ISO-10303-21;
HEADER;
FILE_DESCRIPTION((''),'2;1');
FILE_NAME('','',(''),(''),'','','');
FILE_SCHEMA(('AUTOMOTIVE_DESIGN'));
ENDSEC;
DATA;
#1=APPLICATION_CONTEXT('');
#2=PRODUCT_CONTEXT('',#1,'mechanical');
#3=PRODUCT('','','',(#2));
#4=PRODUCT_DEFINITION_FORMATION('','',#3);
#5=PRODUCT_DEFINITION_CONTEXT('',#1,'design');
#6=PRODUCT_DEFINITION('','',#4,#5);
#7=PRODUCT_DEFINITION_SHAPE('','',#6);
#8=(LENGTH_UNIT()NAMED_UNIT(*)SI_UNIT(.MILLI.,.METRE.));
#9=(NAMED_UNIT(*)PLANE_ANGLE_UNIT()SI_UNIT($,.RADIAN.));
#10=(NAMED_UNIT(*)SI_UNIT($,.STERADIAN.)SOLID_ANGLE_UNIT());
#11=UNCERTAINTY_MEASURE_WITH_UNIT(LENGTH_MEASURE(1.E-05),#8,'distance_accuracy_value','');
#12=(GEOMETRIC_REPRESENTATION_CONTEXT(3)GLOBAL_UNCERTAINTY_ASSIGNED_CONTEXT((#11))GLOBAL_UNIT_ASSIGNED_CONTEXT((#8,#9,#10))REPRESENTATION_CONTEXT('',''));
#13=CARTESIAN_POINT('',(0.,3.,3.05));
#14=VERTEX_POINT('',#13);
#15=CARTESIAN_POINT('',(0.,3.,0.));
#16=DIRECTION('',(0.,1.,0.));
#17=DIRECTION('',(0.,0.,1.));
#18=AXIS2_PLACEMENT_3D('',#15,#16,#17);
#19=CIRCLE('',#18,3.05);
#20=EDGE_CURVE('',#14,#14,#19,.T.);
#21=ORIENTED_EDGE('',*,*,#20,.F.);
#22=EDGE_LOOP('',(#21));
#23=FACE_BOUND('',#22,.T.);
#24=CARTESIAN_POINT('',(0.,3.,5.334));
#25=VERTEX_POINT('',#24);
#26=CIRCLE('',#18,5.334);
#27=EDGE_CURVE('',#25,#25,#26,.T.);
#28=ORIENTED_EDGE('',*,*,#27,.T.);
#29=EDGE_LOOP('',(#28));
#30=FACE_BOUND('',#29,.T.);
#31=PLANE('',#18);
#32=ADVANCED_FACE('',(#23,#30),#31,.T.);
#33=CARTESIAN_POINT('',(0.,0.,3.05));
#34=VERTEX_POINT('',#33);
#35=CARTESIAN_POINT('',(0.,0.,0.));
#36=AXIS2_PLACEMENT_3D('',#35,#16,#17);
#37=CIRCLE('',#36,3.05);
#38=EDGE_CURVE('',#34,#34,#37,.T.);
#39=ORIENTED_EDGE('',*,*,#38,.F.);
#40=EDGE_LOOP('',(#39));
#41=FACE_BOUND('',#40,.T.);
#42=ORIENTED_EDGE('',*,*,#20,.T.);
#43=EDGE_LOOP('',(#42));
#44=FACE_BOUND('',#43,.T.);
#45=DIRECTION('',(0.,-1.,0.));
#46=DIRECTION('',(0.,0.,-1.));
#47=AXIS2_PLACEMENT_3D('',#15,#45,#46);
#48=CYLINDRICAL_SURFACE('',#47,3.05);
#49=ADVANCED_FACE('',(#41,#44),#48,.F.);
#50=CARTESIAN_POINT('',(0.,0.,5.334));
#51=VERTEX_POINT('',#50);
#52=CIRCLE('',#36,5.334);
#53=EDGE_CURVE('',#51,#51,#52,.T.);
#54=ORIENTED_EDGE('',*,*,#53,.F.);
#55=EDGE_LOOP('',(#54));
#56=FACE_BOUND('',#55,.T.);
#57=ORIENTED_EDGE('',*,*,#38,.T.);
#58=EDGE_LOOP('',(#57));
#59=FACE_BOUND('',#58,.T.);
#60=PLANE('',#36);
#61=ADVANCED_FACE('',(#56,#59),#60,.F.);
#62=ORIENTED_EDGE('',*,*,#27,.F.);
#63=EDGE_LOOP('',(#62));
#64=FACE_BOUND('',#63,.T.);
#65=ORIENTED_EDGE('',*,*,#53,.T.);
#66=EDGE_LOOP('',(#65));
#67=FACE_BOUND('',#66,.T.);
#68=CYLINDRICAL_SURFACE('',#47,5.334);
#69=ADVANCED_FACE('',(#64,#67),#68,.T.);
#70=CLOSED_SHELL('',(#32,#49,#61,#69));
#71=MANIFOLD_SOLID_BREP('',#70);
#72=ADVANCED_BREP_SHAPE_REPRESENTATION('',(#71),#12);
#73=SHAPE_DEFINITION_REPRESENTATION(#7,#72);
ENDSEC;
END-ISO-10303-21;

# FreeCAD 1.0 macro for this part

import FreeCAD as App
import Part
import Sketcher

V = App.Vector
Q = App.Units.Quantity

doc = App.newDocument("Part")
body = doc.addObject("PartDesign::Body", "Body")

sketch1 = body.newObject("Sketcher::SketchObject", "Sketch")
sketch1.AttachmentSupport = (doc.getObject("XZ_Plane"), [""])
sketch1.MapMode = "FlatFace"
sketch1.addGeometry(Part.Circle(V(0, 0, 0), V(0, 0, 1), 5.3), False)
sketch1.addGeometry(Part.Circle(V(0, 0, 0), V(0, 0, 1), 3), False)
sketch1.addConstraint(Sketcher.Constraint("Coincident", 0, 3, -1, 1))
sketch1.addConstraint(Sketcher.Constraint("Coincident", 1, 3, -1, 1))
sketch1.addConstraint(Sketcher.Constraint("Diameter", 1, Q("6.1 mm")))
sketch1.addConstraint(Sketcher.Constraint("Diameter", 0, Q("10.668 mm")))
pad1 = body.newObject("PartDesign::Pad", "Pad")
pad1.Profile = sketch1
pad1.Length = 3
pad1.Reversed = True

doc.recompute()
